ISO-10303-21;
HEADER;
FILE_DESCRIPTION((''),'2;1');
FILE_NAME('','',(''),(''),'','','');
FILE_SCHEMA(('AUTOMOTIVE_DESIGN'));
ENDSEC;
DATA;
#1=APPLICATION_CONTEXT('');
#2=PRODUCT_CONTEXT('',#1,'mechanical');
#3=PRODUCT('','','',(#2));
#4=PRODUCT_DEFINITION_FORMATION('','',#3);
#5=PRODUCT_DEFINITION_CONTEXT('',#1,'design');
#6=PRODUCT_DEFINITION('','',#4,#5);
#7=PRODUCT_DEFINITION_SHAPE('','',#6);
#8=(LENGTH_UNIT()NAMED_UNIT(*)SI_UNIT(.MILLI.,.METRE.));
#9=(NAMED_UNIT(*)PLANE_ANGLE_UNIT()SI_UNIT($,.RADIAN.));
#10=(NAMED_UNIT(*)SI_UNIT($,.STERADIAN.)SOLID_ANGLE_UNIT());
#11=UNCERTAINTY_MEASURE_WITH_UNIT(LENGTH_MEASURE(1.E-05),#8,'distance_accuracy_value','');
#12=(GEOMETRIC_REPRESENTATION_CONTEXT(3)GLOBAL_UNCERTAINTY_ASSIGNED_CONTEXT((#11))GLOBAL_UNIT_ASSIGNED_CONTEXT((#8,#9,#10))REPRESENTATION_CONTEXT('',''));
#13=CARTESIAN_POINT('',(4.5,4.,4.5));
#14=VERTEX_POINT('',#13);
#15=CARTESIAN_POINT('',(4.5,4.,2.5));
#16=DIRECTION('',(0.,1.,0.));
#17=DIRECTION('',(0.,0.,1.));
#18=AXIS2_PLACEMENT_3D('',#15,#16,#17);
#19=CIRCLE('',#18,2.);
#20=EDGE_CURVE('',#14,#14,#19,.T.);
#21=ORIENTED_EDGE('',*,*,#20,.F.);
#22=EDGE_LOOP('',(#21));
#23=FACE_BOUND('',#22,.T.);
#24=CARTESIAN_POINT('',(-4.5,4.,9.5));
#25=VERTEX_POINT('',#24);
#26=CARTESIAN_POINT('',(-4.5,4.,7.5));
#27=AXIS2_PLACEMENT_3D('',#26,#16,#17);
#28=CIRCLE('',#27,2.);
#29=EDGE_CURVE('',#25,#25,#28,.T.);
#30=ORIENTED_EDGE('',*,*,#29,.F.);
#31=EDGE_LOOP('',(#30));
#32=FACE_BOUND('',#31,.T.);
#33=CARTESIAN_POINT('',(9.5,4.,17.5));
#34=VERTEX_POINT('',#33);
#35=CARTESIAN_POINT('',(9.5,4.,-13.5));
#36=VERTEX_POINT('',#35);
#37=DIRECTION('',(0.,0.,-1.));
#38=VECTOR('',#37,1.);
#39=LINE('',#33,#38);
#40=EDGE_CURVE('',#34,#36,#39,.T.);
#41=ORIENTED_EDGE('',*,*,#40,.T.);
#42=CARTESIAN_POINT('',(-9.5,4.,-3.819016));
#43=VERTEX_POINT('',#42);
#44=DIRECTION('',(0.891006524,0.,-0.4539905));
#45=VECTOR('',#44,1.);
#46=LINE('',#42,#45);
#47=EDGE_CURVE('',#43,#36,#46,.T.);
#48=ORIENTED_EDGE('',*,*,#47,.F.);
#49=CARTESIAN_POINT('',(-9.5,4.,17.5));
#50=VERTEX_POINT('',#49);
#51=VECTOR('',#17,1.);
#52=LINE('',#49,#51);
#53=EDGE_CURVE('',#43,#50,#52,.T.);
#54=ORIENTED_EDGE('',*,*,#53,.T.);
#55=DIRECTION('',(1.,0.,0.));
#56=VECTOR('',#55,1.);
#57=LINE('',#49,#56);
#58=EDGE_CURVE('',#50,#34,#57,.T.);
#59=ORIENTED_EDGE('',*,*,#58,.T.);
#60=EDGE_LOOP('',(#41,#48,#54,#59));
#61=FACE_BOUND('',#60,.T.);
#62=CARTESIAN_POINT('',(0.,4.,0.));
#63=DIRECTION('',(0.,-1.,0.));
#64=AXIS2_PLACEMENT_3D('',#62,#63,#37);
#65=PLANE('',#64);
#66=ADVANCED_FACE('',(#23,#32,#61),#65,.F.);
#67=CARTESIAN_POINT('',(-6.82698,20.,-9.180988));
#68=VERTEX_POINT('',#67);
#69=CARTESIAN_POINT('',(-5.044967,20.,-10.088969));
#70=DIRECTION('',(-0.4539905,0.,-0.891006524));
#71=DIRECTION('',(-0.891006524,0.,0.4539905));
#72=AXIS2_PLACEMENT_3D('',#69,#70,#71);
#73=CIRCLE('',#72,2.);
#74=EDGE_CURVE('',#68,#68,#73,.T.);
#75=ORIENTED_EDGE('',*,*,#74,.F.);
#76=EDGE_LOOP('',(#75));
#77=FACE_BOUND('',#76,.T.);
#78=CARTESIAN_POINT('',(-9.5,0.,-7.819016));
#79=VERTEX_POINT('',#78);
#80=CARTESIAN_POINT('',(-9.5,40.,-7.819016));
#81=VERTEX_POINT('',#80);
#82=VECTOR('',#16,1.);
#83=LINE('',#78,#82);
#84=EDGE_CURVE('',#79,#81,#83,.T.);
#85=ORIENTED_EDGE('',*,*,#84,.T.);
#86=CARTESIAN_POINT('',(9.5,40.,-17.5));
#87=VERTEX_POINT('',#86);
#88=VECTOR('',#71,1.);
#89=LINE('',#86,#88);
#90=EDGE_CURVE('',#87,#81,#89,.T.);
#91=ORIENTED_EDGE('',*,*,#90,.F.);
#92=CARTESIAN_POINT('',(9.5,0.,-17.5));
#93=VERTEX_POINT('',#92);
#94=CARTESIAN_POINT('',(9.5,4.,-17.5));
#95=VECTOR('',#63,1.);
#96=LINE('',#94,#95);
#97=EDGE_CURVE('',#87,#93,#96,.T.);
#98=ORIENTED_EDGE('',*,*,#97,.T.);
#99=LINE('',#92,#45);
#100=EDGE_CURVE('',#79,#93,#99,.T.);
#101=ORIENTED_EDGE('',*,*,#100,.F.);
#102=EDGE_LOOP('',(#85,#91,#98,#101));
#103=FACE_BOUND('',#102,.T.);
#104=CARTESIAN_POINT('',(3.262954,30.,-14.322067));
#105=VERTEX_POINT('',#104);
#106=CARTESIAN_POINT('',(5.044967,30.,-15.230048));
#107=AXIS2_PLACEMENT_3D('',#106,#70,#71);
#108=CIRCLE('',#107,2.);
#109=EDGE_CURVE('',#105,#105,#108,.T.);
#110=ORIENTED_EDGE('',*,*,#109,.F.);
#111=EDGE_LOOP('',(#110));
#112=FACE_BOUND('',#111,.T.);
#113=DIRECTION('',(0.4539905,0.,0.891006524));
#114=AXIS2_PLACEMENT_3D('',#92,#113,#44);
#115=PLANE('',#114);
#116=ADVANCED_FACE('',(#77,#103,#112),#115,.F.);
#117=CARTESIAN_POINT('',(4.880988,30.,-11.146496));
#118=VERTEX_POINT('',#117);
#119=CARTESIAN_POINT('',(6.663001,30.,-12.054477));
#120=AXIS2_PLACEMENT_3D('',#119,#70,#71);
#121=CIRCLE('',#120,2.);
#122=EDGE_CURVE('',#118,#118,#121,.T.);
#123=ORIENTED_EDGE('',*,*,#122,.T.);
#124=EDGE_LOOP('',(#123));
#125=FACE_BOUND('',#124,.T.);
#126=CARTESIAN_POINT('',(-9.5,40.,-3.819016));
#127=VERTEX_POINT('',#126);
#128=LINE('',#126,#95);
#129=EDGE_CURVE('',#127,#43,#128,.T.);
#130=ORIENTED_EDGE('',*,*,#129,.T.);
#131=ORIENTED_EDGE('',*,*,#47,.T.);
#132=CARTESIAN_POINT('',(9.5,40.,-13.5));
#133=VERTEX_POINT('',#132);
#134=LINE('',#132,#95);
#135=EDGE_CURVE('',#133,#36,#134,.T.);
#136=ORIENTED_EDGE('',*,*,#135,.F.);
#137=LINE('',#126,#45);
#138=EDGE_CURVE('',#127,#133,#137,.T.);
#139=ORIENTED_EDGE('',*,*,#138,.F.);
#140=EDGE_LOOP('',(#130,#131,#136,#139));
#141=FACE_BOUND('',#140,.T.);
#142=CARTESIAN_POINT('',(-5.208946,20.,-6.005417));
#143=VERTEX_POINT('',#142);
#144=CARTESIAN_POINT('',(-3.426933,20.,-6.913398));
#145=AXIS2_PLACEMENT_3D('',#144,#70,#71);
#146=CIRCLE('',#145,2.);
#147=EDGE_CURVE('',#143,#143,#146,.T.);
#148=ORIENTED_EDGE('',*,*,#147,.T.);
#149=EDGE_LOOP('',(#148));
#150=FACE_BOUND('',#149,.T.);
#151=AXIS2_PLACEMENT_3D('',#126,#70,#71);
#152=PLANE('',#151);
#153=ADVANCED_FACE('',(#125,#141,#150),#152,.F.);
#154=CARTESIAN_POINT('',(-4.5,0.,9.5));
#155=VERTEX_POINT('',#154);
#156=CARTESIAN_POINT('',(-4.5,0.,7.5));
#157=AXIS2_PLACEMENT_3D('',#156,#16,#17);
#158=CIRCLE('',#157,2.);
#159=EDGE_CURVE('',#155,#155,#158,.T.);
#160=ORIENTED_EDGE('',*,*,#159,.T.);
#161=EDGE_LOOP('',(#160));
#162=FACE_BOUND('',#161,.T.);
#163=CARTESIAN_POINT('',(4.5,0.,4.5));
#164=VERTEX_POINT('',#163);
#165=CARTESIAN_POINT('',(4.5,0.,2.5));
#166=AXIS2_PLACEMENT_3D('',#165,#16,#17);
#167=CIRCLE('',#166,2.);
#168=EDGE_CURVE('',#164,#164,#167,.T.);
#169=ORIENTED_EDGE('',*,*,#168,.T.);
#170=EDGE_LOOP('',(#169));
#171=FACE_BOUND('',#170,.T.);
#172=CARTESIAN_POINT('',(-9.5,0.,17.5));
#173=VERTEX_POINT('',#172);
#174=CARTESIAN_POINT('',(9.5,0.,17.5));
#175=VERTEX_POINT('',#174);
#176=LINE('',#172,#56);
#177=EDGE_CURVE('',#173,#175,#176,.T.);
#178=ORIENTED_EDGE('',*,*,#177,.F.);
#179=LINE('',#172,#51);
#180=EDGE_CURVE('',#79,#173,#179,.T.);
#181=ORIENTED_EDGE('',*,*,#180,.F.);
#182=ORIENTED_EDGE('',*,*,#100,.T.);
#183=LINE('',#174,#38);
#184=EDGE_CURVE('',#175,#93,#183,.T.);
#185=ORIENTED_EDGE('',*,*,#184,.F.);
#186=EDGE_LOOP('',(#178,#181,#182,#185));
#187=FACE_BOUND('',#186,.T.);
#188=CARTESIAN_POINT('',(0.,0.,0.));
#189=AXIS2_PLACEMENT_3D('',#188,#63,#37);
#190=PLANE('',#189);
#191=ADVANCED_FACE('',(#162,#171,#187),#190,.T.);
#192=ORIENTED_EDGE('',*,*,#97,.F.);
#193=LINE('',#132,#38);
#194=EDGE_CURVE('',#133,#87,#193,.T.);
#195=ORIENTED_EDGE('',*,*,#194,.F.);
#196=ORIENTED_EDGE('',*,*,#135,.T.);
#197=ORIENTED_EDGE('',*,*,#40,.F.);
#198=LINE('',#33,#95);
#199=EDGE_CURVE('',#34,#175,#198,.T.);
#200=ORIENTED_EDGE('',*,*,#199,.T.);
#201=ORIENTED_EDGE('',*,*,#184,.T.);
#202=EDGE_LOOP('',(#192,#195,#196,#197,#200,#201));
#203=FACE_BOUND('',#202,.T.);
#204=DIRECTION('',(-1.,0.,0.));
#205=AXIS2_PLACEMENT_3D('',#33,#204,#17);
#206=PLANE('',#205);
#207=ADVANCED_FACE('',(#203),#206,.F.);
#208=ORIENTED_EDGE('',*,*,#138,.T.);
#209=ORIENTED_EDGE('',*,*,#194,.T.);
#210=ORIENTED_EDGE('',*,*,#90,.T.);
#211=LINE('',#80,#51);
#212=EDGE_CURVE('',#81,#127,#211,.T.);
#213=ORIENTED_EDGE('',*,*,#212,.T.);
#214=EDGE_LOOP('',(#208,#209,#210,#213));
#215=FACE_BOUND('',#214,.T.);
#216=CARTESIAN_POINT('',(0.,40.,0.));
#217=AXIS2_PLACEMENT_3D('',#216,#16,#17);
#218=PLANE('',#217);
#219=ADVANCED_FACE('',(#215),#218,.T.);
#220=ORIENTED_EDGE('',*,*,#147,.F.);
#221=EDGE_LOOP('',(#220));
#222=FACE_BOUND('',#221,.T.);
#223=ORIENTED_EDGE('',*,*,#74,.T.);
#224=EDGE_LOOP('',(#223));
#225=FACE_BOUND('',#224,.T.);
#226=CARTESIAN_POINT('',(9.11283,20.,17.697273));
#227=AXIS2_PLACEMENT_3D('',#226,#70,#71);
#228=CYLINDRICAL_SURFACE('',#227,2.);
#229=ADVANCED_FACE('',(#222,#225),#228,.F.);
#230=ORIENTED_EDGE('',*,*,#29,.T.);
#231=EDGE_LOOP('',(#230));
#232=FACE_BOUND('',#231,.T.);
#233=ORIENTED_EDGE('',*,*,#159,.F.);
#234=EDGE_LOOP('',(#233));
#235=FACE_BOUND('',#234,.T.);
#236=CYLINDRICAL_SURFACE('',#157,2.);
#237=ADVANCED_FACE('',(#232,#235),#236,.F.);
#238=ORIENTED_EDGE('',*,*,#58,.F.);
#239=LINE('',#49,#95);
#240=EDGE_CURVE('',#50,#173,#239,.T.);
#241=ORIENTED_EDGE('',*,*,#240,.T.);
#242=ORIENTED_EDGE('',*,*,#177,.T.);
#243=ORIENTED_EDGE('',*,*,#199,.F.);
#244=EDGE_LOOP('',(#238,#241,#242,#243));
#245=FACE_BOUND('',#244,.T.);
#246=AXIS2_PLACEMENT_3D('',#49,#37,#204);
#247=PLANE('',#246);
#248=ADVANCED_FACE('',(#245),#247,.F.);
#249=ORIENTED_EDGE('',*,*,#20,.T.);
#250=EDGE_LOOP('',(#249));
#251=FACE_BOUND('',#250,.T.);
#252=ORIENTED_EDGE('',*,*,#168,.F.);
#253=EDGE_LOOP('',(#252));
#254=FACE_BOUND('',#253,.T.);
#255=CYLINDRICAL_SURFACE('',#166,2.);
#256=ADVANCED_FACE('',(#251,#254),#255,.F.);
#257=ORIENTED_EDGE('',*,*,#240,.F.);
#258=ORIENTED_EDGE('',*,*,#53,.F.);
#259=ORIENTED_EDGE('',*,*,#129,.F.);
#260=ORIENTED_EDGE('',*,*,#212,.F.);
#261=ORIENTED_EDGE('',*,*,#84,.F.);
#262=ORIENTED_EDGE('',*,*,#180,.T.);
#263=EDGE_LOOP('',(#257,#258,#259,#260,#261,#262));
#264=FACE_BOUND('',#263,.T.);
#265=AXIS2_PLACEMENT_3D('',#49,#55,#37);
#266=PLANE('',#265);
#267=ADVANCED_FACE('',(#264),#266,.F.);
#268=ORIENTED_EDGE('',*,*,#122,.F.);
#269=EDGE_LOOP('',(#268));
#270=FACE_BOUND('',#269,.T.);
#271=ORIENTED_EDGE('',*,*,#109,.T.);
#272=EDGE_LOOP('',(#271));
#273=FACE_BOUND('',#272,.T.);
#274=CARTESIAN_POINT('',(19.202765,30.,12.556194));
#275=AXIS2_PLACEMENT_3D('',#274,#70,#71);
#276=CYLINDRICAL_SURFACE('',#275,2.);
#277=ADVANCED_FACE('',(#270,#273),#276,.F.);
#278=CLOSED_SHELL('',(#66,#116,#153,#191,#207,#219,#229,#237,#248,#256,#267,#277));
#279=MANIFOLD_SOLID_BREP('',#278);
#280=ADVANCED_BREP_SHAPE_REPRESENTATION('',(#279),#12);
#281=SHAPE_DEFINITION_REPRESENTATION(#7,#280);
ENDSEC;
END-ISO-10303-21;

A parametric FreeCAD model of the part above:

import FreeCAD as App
import Part
import Sketcher
from FreeCAD import Vector
Q = App.Units.Quantity

doc = App.newDocument("Part")
params = doc.addObject("Spreadsheet::Sheet", "Params")
for row, (alias, value) in enumerate([
    ("sketch1_width", "19 mm"),
    ("sketch1_height", "35 mm"),
    ("pad1_length", "4 mm"),
    ("sketch2_width", "19 mm"),
    ("sketch3_height", "4 mm"),
    ("pad2_length", "36 mm"),
    ("sketch4_diameter", "4 mm"),
    ("sketch5_diameter", "4 mm"),
], start=1):
    params.set(f"A{row}", alias)
    params.set(f"B{row}", "=" + value)
    params.setAlias(f"B{row}", alias)

body = doc.addObject("PartDesign::Body", "Body")

# Sketch on XZ plane
sketch1 = doc.addObject("Sketcher::SketchObject", "Sketch")
body.addObject(sketch1)
sketch1.AttachmentSupport = (doc.XZ_Plane, [""])
sketch1.MapMode = "FlatFace"
sketch1.addGeometry([
    Part.LineSegment(Vector(-10, -18, 0), Vector(-10, 18, 0)),
    Part.LineSegment(Vector(-10, 18, 0), Vector(10, 18, 0)),
    Part.LineSegment(Vector(10, 18, 0), Vector(10, -18, 0)),
    Part.LineSegment(Vector(10, -18, 0), Vector(-10, -18, 0)),
], False)
sketch1.addConstraint([
    Sketcher.Constraint("Coincident", 0, 2, 1, 1),
    Sketcher.Constraint("Coincident", 1, 2, 2, 1),
    Sketcher.Constraint("Coincident", 2, 2, 3, 1),
    Sketcher.Constraint("Coincident", 3, 2, 0, 1),
    Sketcher.Constraint("Vertical", 0),
    Sketcher.Constraint("Horizontal", 1),
    Sketcher.Constraint("Vertical", 2),
    Sketcher.Constraint("Horizontal", 3),
    Sketcher.Constraint("Symmetric", 0, 2, 2, 2, -1, 1),
    Sketcher.Constraint("DistanceX", 1, 1, 1, 2, 19.0),
    Sketcher.Constraint("DistanceY", 0, 1, 0, 2, 35.0),
])
sketch1.setExpression("Constraints[9]", "Params.sketch1_width")
sketch1.setExpression("Constraints[10]", "Params.sketch1_height")
pad1 = doc.addObject("PartDesign::Pad", "Pad")
body.addObject(pad1)
pad1.Profile = sketch1
pad1.setExpression("Length", "Params.pad1_length")
pad1.Reversed = True

# Sketch on XZ plane
sketch2 = doc.addObject("Sketcher::SketchObject", "Sketch001")
body.addObject(sketch2)
sketch2.AttachmentSupport = (doc.XZ_Plane, [""])
sketch2.MapMode = "FlatFace"
sketch2.AttachmentOffset = App.Placement(Vector(0, 0, -4), App.Rotation())
sketch2.addGeometry([
    Part.LineSegment(Vector(-10, -8, 0), Vector(10, -18, 0)),
    Part.LineSegment(Vector(10, -18, 0), Vector(-10, -18, 0)),
    Part.LineSegment(Vector(-10, -18, 0), Vector(-10, -8, 0)),
], False)
sketch2.addConstraint([
    Sketcher.Constraint("Coincident", 0, 2, 1, 1),
    Sketcher.Constraint("Coincident", 1, 2, 2, 1),
    Sketcher.Constraint("Coincident", 2, 2, 0, 1),
    Sketcher.Constraint("Horizontal", 1),
    Sketcher.Constraint("Vertical", 2),
    Sketcher.Constraint("DistanceX", 1, 2, 1, 1, 19.0),
    Sketcher.Constraint("Angle", 0, Q("-27 deg")),
    Sketcher.Constraint("DistanceX", -1, 1, 0, 2, 9.5),
    Sketcher.Constraint("DistanceY", 0, 2, -1, 1, 17.5),
])
sketch2.setExpression("Constraints[5]", "Params.sketch2_width")
pocket1 = doc.addObject("PartDesign::Pocket", "Pocket")
body.addObject(pocket1)
pocket1.Profile = sketch2
pocket1.Type = "ThroughAll"
pocket1.Reversed = True

# Sketch on XZ plane
sketch3 = doc.addObject("Sketcher::SketchObject", "Sketch002")
body.addObject(sketch3)
sketch3.AttachmentSupport = (doc.XZ_Plane, [""])
sketch3.MapMode = "FlatFace"
sketch3.AttachmentOffset = App.Placement(Vector(0, 0, -4), App.Rotation())
sketch3.addGeometry([
    Part.LineSegment(Vector(9.5, -17.5, 0), Vector(-9.5, -7.8, 0)),
    Part.LineSegment(Vector(-9.5, -7.8, 0), Vector(-9.5, -3.8, 0)),
    Part.LineSegment(Vector(-9.5, -3.8, 0), Vector(9.5, -13.5, 0)),
    Part.LineSegment(Vector(9.5, -13.5, 0), Vector(9.5, -17.5, 0)),
], False)
sketch3.addConstraint([
    Sketcher.Constraint("Coincident", 0, 2, 1, 1),
    Sketcher.Constraint("Coincident", 1, 2, 2, 1),
    Sketcher.Constraint("Coincident", 2, 2, 3, 1),
    Sketcher.Constraint("Coincident", 3, 2, 0, 1),
    Sketcher.Constraint("Vertical", 1),
    Sketcher.Constraint("Vertical", 3),
    Sketcher.Constraint("Parallel", 0, 2),
    Sketcher.Constraint("DistanceY", 1, 1, 1, 2, 4.0),
    Sketcher.Constraint("Angle", 0, Q("153 deg")),
    Sketcher.Constraint("DistanceX", 0, 2, 2, 2, 19.0),
    Sketcher.Constraint("DistanceX", 0, 2, -1, 1, 9.5),
    Sketcher.Constraint("DistanceY", 2, 2, -1, 1, 13.5),
])
sketch3.setExpression("Constraints[7]", "Params.sketch3_height")
pad2 = doc.addObject("PartDesign::Pad", "Pad001")
body.addObject(pad2)
pad2.Profile = sketch3
pad2.setExpression("Length", "Params.pad2_length")
pad2.Reversed = True

# Sketch on an angled plane
sketch4 = doc.addObject("Sketcher::SketchObject", "Sketch003")
body.addObject(sketch4)
sketch4.Placement = App.Placement(Vector(-5.120879, 0, -10.05029), App.Rotation(Vector(-0.891006524, 0, 0.4539905), Vector(0, 1, 0), Vector(-0.4539905, 0, -0.891006524), "ZXY"))
sketch4.addGeometry([
    Part.Circle(Vector(-11.4, 30, 0), Vector(0, 0, 1), 2),
    Part.Circle(Vector(-0.1, 20, 0), Vector(0, 0, 1), 2),
], False)
sketch4.addConstraint([
    Sketcher.Constraint("Equal", 0, 1),
    Sketcher.Constraint("Diameter", 0, 4.0),
    Sketcher.Constraint("DistanceY", -1, 1, 0, 3, 30.0),
    Sketcher.Constraint("DistanceY", -1, 1, 1, 3, 20.0),
    Sketcher.Constraint("DistanceX", 0, 3, 1, 3, 11.324199),
    Sketcher.Constraint("DistanceX", 0, 3, -1, 1, 11.409396),
])
sketch4.setExpression("Constraints[1]", "Params.sketch4_diameter")
pocket2 = doc.addObject("PartDesign::Pocket", "Pocket001")
body.addObject(pocket2)
pocket2.Profile = sketch4
pocket2.Type = "ThroughAll"

# Sketch on XZ plane
sketch5 = doc.addObject("Sketcher::SketchObject", "Sketch004")
body.addObject(sketch5)
sketch5.AttachmentSupport = (doc.XZ_Plane, [""])
sketch5.MapMode = "FlatFace"
sketch5.AttachmentOffset = App.Placement(Vector(0, 0, -4), App.Rotation())
sketch5.addGeometry([
    Part.Circle(Vector(-4.5, 7.5, 0), Vector(0, 0, 1), 2),
    Part.Circle(Vector(4.5, 2.5, 0), Vector(0, 0, 1), 2),
], False)
sketch5.addConstraint([
    Sketcher.Constraint("Equal", 0, 1),
    Sketcher.Constraint("Diameter", 0, 4.0),
    Sketcher.Constraint("DistanceX", 0, 3, 1, 3, 9.0),
    Sketcher.Constraint("DistanceY", 1, 3, 0, 3, 5.0),
    Sketcher.Constraint("DistanceX", 0, 3, -1, 1, 4.5),
    Sketcher.Constraint("DistanceY", -1, 1, 0, 3, 7.5),
])
sketch5.setExpression("Constraints[1]", "Params.sketch5_diameter")
pocket3 = doc.addObject("PartDesign::Pocket", "Pocket002")
body.addObject(pocket3)
pocket3.Profile = sketch5
pocket3.Type = "ThroughAll"
pocket3.Reversed = True

doc.recompute()
